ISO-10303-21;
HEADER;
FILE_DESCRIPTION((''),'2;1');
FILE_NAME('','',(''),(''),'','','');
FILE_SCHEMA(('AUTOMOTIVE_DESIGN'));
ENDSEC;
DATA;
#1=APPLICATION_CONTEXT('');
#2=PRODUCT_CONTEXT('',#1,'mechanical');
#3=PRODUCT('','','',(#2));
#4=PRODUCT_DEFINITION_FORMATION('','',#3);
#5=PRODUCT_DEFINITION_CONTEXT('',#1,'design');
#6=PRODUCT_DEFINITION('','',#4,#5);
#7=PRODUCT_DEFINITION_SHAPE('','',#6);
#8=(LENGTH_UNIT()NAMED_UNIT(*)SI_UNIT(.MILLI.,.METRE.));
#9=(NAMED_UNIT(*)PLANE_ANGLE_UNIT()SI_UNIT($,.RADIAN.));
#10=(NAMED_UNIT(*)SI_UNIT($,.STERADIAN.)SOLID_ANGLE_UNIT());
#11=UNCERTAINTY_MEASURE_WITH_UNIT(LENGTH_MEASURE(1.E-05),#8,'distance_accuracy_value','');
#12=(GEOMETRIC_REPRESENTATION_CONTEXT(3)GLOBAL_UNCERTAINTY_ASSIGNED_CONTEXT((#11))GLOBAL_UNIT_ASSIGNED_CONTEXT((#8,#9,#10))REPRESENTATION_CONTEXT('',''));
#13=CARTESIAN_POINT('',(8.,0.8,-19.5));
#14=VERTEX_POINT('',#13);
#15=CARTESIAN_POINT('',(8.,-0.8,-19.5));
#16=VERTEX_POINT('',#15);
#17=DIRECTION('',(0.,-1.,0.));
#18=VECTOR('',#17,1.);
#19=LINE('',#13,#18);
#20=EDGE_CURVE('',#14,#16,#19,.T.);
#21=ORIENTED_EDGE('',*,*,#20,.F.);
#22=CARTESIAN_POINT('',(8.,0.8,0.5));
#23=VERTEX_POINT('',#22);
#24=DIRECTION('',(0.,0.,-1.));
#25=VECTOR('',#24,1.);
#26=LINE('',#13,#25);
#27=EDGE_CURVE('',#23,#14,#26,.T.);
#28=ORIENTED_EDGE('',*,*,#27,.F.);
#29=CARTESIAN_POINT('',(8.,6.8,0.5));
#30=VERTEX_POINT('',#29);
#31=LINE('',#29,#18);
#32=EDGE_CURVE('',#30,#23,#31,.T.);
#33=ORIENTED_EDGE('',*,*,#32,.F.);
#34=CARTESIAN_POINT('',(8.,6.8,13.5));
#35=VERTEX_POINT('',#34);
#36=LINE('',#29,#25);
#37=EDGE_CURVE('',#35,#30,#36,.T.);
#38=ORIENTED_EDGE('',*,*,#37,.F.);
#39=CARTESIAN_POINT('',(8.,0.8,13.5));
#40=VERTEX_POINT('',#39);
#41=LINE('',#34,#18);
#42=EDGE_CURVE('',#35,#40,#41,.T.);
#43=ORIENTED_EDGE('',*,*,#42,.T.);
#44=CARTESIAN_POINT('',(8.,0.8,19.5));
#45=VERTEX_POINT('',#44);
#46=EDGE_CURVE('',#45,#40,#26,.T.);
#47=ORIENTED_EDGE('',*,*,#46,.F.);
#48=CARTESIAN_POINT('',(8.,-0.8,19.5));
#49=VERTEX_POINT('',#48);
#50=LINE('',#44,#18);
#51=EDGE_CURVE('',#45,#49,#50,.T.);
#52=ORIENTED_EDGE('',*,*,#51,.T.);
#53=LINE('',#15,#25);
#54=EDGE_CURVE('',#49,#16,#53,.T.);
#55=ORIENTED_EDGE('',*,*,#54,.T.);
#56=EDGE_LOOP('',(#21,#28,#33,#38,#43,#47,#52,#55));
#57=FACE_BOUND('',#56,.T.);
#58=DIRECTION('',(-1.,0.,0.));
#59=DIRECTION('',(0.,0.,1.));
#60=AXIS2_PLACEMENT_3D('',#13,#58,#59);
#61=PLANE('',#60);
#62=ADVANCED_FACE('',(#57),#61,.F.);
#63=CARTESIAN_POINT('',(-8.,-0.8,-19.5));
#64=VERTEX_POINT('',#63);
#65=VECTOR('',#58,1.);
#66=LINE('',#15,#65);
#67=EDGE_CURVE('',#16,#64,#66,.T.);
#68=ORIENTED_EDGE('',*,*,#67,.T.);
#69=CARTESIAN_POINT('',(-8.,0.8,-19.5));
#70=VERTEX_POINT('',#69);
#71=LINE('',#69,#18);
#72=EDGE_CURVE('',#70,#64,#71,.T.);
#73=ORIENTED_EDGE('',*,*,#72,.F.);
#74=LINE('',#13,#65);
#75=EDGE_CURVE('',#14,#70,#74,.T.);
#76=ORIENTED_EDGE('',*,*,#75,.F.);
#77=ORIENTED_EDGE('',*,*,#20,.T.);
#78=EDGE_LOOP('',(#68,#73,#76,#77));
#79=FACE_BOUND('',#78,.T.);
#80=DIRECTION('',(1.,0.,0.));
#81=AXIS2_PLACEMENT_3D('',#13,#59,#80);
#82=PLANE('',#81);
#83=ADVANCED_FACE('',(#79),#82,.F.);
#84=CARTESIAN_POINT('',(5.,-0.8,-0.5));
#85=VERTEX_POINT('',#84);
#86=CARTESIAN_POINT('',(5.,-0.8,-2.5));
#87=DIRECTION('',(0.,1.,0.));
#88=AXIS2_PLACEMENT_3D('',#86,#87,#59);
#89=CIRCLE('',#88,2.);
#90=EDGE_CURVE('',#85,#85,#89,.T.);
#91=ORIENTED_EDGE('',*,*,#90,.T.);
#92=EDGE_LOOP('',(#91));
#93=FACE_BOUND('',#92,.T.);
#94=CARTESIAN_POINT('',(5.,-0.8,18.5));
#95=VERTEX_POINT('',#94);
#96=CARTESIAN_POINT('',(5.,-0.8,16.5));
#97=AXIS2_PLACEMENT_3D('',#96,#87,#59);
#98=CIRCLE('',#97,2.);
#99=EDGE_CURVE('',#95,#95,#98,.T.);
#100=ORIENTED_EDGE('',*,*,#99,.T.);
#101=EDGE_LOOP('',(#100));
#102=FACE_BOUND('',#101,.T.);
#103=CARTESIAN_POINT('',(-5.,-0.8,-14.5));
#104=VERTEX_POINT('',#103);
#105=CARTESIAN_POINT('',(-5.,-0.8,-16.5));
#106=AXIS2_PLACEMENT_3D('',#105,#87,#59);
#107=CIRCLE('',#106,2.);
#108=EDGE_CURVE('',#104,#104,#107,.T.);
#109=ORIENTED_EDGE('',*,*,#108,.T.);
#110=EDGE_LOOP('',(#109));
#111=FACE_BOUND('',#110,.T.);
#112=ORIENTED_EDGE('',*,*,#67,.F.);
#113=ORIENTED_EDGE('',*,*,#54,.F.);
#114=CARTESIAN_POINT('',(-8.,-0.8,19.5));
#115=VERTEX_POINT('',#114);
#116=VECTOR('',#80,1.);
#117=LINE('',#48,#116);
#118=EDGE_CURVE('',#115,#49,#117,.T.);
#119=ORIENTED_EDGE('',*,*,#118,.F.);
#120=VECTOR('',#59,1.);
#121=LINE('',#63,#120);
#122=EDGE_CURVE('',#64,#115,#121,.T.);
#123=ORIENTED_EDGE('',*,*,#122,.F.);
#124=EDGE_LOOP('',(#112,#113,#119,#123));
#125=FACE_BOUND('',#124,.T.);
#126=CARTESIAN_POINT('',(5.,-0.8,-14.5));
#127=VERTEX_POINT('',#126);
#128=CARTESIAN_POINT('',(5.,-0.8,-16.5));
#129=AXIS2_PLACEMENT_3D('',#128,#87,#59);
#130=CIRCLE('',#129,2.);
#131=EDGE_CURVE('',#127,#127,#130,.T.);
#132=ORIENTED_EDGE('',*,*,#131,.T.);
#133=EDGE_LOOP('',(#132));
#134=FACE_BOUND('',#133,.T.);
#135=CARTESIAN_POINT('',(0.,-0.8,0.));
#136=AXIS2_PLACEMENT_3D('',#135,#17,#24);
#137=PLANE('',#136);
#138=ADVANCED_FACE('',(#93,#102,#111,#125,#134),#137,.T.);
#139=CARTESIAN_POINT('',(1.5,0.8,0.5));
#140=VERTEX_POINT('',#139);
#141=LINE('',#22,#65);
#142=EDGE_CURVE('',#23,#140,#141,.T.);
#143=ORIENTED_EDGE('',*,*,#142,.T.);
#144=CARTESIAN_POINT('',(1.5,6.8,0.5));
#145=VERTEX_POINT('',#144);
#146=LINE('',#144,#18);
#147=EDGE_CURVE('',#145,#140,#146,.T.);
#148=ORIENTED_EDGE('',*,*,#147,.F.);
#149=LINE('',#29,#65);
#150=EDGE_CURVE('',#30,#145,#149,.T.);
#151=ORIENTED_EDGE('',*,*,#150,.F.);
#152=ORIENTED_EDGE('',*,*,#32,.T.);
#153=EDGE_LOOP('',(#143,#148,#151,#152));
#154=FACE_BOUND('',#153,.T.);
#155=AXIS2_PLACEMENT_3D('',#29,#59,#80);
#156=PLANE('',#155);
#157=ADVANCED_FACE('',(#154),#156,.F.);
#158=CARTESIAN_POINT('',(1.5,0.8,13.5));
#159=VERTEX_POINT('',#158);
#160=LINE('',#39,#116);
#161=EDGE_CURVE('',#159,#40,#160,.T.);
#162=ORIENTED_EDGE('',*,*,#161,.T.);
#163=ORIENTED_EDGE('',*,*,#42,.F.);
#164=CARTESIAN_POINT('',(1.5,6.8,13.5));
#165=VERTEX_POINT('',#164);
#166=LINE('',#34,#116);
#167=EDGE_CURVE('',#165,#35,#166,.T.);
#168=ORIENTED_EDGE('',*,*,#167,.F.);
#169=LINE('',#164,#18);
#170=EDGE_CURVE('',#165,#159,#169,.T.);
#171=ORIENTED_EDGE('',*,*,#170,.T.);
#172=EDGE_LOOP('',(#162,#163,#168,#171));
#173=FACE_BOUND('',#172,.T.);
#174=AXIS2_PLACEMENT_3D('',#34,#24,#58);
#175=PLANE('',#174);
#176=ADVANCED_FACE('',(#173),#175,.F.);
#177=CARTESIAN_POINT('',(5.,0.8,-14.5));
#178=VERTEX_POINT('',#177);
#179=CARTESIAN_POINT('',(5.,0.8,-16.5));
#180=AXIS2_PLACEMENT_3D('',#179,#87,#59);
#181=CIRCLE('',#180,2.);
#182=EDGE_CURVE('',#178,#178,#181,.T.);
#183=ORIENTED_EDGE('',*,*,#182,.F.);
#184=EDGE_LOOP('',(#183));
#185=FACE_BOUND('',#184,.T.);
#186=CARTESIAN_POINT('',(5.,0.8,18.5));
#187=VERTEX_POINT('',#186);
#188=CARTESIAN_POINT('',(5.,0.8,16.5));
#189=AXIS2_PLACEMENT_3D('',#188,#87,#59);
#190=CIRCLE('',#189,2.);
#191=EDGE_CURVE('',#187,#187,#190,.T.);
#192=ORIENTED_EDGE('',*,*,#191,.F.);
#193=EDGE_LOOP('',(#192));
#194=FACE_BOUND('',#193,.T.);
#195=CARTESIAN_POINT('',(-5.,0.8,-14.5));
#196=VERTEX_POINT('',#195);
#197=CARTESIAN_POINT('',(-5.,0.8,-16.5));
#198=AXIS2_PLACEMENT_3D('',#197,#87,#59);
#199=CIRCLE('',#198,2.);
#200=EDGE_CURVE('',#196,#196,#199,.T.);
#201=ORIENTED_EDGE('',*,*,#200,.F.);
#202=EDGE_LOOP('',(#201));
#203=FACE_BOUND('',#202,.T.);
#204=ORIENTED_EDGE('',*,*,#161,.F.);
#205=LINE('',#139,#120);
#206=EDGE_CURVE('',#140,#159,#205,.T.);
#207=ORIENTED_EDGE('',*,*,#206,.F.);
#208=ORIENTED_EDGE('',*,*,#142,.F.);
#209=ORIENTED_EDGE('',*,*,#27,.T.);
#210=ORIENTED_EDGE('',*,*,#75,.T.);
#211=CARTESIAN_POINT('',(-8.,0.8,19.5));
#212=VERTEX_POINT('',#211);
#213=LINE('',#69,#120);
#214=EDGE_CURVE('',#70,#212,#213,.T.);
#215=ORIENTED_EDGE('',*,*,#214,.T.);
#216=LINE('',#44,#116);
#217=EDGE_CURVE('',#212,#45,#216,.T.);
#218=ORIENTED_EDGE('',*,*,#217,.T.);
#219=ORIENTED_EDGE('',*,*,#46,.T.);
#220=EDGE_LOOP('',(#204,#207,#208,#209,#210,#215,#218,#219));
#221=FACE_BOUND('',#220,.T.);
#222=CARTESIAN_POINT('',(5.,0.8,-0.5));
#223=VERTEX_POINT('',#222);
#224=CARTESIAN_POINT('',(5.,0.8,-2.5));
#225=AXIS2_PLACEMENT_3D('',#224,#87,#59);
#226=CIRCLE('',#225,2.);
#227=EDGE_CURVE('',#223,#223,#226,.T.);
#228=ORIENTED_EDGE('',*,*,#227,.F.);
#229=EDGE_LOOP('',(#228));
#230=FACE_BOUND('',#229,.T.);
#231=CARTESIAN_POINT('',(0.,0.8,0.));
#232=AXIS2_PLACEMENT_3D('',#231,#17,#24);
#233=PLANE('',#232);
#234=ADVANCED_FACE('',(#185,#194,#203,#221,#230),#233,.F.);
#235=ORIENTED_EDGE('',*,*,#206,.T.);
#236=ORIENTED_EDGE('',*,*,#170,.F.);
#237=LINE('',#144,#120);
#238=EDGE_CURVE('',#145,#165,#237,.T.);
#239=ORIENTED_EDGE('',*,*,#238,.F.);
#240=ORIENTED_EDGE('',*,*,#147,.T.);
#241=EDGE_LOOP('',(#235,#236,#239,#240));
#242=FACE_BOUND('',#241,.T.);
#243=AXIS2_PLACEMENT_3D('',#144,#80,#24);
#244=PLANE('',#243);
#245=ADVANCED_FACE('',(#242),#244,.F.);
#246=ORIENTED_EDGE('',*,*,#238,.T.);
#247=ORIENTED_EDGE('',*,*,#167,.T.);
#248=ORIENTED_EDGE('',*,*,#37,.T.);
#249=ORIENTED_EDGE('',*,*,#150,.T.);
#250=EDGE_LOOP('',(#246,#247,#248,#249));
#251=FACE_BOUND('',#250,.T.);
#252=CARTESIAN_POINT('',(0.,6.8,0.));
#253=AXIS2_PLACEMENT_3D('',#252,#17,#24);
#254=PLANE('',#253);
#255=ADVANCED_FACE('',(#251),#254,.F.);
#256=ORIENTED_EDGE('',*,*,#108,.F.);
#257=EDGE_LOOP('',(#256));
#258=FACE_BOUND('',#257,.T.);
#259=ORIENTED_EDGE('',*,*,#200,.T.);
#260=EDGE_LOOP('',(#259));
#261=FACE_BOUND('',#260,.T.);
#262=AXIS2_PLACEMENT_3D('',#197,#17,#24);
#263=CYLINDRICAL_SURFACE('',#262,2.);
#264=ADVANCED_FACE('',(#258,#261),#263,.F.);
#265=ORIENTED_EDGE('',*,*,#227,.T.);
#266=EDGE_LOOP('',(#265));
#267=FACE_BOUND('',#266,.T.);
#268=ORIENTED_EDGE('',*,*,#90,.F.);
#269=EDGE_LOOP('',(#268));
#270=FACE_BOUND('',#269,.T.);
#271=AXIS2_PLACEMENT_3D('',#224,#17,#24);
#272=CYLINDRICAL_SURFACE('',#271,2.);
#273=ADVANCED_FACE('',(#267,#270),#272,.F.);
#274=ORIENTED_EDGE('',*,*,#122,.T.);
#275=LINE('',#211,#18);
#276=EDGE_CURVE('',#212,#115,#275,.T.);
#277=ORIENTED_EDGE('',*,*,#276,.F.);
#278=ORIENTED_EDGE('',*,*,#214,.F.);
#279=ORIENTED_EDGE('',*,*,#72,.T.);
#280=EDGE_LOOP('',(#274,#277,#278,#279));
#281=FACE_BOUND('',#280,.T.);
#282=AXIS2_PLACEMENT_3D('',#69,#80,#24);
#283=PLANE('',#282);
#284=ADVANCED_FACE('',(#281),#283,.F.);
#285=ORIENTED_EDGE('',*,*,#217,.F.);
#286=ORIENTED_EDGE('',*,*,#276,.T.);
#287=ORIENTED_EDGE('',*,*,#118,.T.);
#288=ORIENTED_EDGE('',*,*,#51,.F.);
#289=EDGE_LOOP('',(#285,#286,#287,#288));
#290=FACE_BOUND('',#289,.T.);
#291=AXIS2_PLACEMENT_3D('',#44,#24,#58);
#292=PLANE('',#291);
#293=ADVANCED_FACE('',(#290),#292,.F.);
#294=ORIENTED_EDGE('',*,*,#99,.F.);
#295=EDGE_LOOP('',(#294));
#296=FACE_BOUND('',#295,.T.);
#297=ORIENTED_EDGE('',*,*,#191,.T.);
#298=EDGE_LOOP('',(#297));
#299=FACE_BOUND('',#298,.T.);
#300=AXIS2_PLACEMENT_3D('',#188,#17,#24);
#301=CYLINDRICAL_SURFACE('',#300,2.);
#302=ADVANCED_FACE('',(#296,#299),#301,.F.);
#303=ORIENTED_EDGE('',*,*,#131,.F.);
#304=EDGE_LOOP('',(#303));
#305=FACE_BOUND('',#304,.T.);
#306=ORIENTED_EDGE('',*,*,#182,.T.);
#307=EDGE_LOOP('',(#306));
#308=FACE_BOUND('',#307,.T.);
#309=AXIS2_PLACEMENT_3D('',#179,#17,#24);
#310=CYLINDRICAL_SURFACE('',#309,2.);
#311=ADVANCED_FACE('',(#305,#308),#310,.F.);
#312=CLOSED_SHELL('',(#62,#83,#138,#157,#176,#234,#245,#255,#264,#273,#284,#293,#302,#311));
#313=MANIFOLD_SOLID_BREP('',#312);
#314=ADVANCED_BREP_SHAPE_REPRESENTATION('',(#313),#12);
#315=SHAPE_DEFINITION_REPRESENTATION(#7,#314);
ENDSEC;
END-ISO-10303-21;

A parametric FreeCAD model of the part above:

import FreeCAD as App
import Part
import Sketcher

V = App.Vector


def add_polygon(sketch, points):
    """Adds a closed chain of lines whose ends are joined by coincident constraints."""
    first, n = sketch.GeometryCount, len(points)
    for a, b in zip(points, points[1:] + points[:1]):
        sketch.addGeometry(Part.LineSegment(App.Vector(*a, 0), App.Vector(*b, 0)), False)
    for i in range(n):
        sketch.addConstraint(Sketcher.Constraint("Coincident", first + i, 2, first + (i + 1) % n, 1))

doc = App.newDocument("Part")
params = doc.addObject("Spreadsheet::Sheet", "Params")
for row, (alias, value) in enumerate([
    ("sketch1_diameter", "4 mm"),
    ("sketch1_width", "16 mm"),
    ("sketch1_height", "39 mm"),
    ("pad1_length", "1.6 mm"),
    ("sketch2_height", "13 mm"),
    ("sketch2_width", "6.5 mm"),
    ("pad2_length", "6 mm"),
], start=1):
    params.set(f"A{row}", alias)
    params.set(f"B{row}", "=" + value)
    params.setAlias(f"B{row}", alias)

body = doc.addObject("PartDesign::Body", "Body")

# Sketch on XZ plane
sketch1 = doc.addObject("Sketcher::SketchObject", "Sketch")
body.addObject(sketch1)
sketch1.AttachmentSupport = (doc.XZ_Plane, [""])
sketch1.MapMode = "FlatFace"
add_polygon(sketch1, [(-8, -19.5), (-8, 19.5), (8, 19.5), (8, -19.5)])  # lines 0-3
sketch1.addGeometry(Part.Circle(V(5, 16.5, 0), V(0, 0, 1), 2), False)  # 4
sketch1.addGeometry(Part.Circle(V(-5, -16.5, 0), V(0, 0, 1), 2), False)  # 5
sketch1.addGeometry(Part.Circle(V(5, -2.5, 0), V(0, 0, 1), 2), False)  # 6
sketch1.addGeometry(Part.Circle(V(5, -16.5, 0), V(0, 0, 1), 2), False)  # 7
sketch1.addConstraint(Sketcher.Constraint("Vertical", 0))
sketch1.addConstraint(Sketcher.Constraint("Horizontal", 1))
sketch1.addConstraint(Sketcher.Constraint("Vertical", 2))
sketch1.addConstraint(Sketcher.Constraint("Horizontal", 3))
sketch1.addConstraint(Sketcher.Constraint("Equal", 4, 5))
sketch1.addConstraint(Sketcher.Constraint("Equal", 5, 6))
sketch1.addConstraint(Sketcher.Constraint("Equal", 6, 7))
sketch1.addConstraint(Sketcher.Constraint("Symmetric", 4, 3, 5, 3, -1, 1))
sketch1.addConstraint(Sketcher.Constraint("Symmetric", 0, 2, 2, 2, -1, 1))
sketch1.addConstraint(Sketcher.Constraint("Symmetric", 5, 3, 7, 3, -2))
sketch1.addConstraint(Sketcher.Constraint("Vertical", 4, 3, 6, 3))
sketch1.addConstraint(Sketcher.Constraint("Diameter", 4, 4.0))
sketch1.addConstraint(Sketcher.Constraint("DistanceX", 1, 1, 1, 2, 16.0))
sketch1.addConstraint(Sketcher.Constraint("DistanceY", 0, 1, 0, 2, 39.0))
sketch1.addConstraint(Sketcher.Constraint("DistanceX", -1, 1, 4, 3, 5.0))
sketch1.addConstraint(Sketcher.Constraint("DistanceY", 5, 3, 4, 3, 33.0))
sketch1.addConstraint(Sketcher.Constraint("DistanceY", 5, 3, 6, 3, 14.0))
sketch1.setExpression("Constraints[15]", "Params.sketch1_diameter")
sketch1.setExpression("Constraints[16]", "Params.sketch1_width")
sketch1.setExpression("Constraints[17]", "Params.sketch1_height")
pad1 = doc.addObject("PartDesign::Pad", "Pad")
body.addObject(pad1)
pad1.Profile = sketch1
pad1.setExpression("Length", "Params.pad1_length")
pad1.Midplane = True

# Sketch on XZ plane
sketch2 = doc.addObject("Sketcher::SketchObject", "Sketch001")
body.addObject(sketch2)
sketch2.AttachmentSupport = (doc.XZ_Plane, [""])
sketch2.MapMode = "FlatFace"
sketch2.AttachmentOffset = App.Placement(V(0, 0, -0.8), App.Rotation())
add_polygon(sketch2, [(2, 0), (2, 14), (8, 14), (8, 0)])  # lines 0-3
sketch2.addConstraint(Sketcher.Constraint("Vertical", 0))
sketch2.addConstraint(Sketcher.Constraint("Horizontal", 1))
sketch2.addConstraint(Sketcher.Constraint("Vertical", 2))
sketch2.addConstraint(Sketcher.Constraint("Horizontal", 3))
sketch2.addConstraint(Sketcher.Constraint("DistanceY", 0, 1, 0, 2, 13.0))
sketch2.addConstraint(Sketcher.Constraint("DistanceX", 1, 1, 1, 2, 6.5))
sketch2.addConstraint(Sketcher.Constraint("DistanceX", -1, 1, 1, 2, 8.0))
sketch2.addConstraint(Sketcher.Constraint("DistanceY", -1, 1, 0, 2, 13.5))
sketch2.setExpression("Constraints[8]", "Params.sketch2_height")
sketch2.setExpression("Constraints[9]", "Params.sketch2_width")
pad2 = doc.addObject("PartDesign::Pad", "Pad001")
body.addObject(pad2)
pad2.Profile = sketch2
pad2.setExpression("Length", "Params.pad2_length")
pad2.Reversed = True

doc.recompute()
